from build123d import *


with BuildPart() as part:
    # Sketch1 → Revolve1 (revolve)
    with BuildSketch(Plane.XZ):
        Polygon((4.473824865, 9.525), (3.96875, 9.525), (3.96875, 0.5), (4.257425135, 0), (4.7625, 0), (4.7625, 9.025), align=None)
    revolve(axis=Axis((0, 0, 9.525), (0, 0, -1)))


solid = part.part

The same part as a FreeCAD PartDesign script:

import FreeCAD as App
import Part
import Sketcher
from FreeCAD import Vector
Q = App.Units.Quantity


def add_polygon(sketch, points):
    """Adds a closed chain of lines whose ends are joined by coincident constraints."""
    first, n = sketch.GeometryCount, len(points)
    for a, b in zip(points, points[1:] + points[:1]):
        sketch.addGeometry(Part.LineSegment(App.Vector(*a, 0), App.Vector(*b, 0)), False)
    for i in range(n):
        sketch.addConstraint(Sketcher.Constraint("Coincident", first + i, 2, first + (i + 1) % n, 1))

doc = App.newDocument("Part")
params = doc.addObject("Spreadsheet::Sheet", "Params")
for row, (alias, value) in enumerate([
    ("revolution_angle", "360 deg"),
], start=1):
    params.set(f"A{row}", alias)
    params.set(f"B{row}", "=" + value)
    params.setAlias(f"B{row}", alias)

body = doc.addObject("PartDesign::Body", "Body")

sketch1 = body.newObject("Sketcher::SketchObject", "Sketch")
sketch1.AttachmentSupport = (doc.getObject("XZ_Plane"), [""])
sketch1.MapMode = "FlatFace"
add_polygon(sketch1, [(4.5, 9.5), (4, 9.5), (4, 0.5), (4.3, 0), (4.8, 0), (4.8, 9)])
sketch1.addConstraint(Sketcher.Constraint("Horizontal", 0))
sketch1.addConstraint(Sketcher.Constraint("Vertical", 1))
sketch1.addConstraint(Sketcher.Constraint("Horizontal", 3))
sketch1.addConstraint(Sketcher.Constraint("Vertical", 4))
sketch1.addConstraint(Sketcher.Constraint("PointOnObject", 2, 2, -1))
sketch1.addConstraint(Sketcher.Constraint("Parallel", 2, 5))
sketch1.addConstraint(Sketcher.Constraint("Equal", 0, 3))
sketch1.addConstraint(Sketcher.Constraint("Angle", 2, Q("-60 deg")))
sketch1.addConstraint(Sketcher.Constraint("DistanceY", -1, 1, 1, 2, Q("0.5 mm")))
sketch1.addConstraint(Sketcher.Constraint("DistanceY", 1, 2, 1, 1, Q("9.025 mm")))
sketch1.addConstraint(Sketcher.Constraint("DistanceX", -1, 1, 3, 2, Q("4.7625 mm")))
sketch1.addConstraint(Sketcher.Constraint("DistanceX", 2, 2, 5, 2, Q("0.2164 mm")))
revolution = body.newObject("PartDesign::Revolution", "Revolution")
revolution.Profile = sketch1
revolution.ReferenceAxis = (sketch1, ["V_Axis"])
revolution.setExpression("Angle", "Params.revolution_angle")

doc.recompute()
